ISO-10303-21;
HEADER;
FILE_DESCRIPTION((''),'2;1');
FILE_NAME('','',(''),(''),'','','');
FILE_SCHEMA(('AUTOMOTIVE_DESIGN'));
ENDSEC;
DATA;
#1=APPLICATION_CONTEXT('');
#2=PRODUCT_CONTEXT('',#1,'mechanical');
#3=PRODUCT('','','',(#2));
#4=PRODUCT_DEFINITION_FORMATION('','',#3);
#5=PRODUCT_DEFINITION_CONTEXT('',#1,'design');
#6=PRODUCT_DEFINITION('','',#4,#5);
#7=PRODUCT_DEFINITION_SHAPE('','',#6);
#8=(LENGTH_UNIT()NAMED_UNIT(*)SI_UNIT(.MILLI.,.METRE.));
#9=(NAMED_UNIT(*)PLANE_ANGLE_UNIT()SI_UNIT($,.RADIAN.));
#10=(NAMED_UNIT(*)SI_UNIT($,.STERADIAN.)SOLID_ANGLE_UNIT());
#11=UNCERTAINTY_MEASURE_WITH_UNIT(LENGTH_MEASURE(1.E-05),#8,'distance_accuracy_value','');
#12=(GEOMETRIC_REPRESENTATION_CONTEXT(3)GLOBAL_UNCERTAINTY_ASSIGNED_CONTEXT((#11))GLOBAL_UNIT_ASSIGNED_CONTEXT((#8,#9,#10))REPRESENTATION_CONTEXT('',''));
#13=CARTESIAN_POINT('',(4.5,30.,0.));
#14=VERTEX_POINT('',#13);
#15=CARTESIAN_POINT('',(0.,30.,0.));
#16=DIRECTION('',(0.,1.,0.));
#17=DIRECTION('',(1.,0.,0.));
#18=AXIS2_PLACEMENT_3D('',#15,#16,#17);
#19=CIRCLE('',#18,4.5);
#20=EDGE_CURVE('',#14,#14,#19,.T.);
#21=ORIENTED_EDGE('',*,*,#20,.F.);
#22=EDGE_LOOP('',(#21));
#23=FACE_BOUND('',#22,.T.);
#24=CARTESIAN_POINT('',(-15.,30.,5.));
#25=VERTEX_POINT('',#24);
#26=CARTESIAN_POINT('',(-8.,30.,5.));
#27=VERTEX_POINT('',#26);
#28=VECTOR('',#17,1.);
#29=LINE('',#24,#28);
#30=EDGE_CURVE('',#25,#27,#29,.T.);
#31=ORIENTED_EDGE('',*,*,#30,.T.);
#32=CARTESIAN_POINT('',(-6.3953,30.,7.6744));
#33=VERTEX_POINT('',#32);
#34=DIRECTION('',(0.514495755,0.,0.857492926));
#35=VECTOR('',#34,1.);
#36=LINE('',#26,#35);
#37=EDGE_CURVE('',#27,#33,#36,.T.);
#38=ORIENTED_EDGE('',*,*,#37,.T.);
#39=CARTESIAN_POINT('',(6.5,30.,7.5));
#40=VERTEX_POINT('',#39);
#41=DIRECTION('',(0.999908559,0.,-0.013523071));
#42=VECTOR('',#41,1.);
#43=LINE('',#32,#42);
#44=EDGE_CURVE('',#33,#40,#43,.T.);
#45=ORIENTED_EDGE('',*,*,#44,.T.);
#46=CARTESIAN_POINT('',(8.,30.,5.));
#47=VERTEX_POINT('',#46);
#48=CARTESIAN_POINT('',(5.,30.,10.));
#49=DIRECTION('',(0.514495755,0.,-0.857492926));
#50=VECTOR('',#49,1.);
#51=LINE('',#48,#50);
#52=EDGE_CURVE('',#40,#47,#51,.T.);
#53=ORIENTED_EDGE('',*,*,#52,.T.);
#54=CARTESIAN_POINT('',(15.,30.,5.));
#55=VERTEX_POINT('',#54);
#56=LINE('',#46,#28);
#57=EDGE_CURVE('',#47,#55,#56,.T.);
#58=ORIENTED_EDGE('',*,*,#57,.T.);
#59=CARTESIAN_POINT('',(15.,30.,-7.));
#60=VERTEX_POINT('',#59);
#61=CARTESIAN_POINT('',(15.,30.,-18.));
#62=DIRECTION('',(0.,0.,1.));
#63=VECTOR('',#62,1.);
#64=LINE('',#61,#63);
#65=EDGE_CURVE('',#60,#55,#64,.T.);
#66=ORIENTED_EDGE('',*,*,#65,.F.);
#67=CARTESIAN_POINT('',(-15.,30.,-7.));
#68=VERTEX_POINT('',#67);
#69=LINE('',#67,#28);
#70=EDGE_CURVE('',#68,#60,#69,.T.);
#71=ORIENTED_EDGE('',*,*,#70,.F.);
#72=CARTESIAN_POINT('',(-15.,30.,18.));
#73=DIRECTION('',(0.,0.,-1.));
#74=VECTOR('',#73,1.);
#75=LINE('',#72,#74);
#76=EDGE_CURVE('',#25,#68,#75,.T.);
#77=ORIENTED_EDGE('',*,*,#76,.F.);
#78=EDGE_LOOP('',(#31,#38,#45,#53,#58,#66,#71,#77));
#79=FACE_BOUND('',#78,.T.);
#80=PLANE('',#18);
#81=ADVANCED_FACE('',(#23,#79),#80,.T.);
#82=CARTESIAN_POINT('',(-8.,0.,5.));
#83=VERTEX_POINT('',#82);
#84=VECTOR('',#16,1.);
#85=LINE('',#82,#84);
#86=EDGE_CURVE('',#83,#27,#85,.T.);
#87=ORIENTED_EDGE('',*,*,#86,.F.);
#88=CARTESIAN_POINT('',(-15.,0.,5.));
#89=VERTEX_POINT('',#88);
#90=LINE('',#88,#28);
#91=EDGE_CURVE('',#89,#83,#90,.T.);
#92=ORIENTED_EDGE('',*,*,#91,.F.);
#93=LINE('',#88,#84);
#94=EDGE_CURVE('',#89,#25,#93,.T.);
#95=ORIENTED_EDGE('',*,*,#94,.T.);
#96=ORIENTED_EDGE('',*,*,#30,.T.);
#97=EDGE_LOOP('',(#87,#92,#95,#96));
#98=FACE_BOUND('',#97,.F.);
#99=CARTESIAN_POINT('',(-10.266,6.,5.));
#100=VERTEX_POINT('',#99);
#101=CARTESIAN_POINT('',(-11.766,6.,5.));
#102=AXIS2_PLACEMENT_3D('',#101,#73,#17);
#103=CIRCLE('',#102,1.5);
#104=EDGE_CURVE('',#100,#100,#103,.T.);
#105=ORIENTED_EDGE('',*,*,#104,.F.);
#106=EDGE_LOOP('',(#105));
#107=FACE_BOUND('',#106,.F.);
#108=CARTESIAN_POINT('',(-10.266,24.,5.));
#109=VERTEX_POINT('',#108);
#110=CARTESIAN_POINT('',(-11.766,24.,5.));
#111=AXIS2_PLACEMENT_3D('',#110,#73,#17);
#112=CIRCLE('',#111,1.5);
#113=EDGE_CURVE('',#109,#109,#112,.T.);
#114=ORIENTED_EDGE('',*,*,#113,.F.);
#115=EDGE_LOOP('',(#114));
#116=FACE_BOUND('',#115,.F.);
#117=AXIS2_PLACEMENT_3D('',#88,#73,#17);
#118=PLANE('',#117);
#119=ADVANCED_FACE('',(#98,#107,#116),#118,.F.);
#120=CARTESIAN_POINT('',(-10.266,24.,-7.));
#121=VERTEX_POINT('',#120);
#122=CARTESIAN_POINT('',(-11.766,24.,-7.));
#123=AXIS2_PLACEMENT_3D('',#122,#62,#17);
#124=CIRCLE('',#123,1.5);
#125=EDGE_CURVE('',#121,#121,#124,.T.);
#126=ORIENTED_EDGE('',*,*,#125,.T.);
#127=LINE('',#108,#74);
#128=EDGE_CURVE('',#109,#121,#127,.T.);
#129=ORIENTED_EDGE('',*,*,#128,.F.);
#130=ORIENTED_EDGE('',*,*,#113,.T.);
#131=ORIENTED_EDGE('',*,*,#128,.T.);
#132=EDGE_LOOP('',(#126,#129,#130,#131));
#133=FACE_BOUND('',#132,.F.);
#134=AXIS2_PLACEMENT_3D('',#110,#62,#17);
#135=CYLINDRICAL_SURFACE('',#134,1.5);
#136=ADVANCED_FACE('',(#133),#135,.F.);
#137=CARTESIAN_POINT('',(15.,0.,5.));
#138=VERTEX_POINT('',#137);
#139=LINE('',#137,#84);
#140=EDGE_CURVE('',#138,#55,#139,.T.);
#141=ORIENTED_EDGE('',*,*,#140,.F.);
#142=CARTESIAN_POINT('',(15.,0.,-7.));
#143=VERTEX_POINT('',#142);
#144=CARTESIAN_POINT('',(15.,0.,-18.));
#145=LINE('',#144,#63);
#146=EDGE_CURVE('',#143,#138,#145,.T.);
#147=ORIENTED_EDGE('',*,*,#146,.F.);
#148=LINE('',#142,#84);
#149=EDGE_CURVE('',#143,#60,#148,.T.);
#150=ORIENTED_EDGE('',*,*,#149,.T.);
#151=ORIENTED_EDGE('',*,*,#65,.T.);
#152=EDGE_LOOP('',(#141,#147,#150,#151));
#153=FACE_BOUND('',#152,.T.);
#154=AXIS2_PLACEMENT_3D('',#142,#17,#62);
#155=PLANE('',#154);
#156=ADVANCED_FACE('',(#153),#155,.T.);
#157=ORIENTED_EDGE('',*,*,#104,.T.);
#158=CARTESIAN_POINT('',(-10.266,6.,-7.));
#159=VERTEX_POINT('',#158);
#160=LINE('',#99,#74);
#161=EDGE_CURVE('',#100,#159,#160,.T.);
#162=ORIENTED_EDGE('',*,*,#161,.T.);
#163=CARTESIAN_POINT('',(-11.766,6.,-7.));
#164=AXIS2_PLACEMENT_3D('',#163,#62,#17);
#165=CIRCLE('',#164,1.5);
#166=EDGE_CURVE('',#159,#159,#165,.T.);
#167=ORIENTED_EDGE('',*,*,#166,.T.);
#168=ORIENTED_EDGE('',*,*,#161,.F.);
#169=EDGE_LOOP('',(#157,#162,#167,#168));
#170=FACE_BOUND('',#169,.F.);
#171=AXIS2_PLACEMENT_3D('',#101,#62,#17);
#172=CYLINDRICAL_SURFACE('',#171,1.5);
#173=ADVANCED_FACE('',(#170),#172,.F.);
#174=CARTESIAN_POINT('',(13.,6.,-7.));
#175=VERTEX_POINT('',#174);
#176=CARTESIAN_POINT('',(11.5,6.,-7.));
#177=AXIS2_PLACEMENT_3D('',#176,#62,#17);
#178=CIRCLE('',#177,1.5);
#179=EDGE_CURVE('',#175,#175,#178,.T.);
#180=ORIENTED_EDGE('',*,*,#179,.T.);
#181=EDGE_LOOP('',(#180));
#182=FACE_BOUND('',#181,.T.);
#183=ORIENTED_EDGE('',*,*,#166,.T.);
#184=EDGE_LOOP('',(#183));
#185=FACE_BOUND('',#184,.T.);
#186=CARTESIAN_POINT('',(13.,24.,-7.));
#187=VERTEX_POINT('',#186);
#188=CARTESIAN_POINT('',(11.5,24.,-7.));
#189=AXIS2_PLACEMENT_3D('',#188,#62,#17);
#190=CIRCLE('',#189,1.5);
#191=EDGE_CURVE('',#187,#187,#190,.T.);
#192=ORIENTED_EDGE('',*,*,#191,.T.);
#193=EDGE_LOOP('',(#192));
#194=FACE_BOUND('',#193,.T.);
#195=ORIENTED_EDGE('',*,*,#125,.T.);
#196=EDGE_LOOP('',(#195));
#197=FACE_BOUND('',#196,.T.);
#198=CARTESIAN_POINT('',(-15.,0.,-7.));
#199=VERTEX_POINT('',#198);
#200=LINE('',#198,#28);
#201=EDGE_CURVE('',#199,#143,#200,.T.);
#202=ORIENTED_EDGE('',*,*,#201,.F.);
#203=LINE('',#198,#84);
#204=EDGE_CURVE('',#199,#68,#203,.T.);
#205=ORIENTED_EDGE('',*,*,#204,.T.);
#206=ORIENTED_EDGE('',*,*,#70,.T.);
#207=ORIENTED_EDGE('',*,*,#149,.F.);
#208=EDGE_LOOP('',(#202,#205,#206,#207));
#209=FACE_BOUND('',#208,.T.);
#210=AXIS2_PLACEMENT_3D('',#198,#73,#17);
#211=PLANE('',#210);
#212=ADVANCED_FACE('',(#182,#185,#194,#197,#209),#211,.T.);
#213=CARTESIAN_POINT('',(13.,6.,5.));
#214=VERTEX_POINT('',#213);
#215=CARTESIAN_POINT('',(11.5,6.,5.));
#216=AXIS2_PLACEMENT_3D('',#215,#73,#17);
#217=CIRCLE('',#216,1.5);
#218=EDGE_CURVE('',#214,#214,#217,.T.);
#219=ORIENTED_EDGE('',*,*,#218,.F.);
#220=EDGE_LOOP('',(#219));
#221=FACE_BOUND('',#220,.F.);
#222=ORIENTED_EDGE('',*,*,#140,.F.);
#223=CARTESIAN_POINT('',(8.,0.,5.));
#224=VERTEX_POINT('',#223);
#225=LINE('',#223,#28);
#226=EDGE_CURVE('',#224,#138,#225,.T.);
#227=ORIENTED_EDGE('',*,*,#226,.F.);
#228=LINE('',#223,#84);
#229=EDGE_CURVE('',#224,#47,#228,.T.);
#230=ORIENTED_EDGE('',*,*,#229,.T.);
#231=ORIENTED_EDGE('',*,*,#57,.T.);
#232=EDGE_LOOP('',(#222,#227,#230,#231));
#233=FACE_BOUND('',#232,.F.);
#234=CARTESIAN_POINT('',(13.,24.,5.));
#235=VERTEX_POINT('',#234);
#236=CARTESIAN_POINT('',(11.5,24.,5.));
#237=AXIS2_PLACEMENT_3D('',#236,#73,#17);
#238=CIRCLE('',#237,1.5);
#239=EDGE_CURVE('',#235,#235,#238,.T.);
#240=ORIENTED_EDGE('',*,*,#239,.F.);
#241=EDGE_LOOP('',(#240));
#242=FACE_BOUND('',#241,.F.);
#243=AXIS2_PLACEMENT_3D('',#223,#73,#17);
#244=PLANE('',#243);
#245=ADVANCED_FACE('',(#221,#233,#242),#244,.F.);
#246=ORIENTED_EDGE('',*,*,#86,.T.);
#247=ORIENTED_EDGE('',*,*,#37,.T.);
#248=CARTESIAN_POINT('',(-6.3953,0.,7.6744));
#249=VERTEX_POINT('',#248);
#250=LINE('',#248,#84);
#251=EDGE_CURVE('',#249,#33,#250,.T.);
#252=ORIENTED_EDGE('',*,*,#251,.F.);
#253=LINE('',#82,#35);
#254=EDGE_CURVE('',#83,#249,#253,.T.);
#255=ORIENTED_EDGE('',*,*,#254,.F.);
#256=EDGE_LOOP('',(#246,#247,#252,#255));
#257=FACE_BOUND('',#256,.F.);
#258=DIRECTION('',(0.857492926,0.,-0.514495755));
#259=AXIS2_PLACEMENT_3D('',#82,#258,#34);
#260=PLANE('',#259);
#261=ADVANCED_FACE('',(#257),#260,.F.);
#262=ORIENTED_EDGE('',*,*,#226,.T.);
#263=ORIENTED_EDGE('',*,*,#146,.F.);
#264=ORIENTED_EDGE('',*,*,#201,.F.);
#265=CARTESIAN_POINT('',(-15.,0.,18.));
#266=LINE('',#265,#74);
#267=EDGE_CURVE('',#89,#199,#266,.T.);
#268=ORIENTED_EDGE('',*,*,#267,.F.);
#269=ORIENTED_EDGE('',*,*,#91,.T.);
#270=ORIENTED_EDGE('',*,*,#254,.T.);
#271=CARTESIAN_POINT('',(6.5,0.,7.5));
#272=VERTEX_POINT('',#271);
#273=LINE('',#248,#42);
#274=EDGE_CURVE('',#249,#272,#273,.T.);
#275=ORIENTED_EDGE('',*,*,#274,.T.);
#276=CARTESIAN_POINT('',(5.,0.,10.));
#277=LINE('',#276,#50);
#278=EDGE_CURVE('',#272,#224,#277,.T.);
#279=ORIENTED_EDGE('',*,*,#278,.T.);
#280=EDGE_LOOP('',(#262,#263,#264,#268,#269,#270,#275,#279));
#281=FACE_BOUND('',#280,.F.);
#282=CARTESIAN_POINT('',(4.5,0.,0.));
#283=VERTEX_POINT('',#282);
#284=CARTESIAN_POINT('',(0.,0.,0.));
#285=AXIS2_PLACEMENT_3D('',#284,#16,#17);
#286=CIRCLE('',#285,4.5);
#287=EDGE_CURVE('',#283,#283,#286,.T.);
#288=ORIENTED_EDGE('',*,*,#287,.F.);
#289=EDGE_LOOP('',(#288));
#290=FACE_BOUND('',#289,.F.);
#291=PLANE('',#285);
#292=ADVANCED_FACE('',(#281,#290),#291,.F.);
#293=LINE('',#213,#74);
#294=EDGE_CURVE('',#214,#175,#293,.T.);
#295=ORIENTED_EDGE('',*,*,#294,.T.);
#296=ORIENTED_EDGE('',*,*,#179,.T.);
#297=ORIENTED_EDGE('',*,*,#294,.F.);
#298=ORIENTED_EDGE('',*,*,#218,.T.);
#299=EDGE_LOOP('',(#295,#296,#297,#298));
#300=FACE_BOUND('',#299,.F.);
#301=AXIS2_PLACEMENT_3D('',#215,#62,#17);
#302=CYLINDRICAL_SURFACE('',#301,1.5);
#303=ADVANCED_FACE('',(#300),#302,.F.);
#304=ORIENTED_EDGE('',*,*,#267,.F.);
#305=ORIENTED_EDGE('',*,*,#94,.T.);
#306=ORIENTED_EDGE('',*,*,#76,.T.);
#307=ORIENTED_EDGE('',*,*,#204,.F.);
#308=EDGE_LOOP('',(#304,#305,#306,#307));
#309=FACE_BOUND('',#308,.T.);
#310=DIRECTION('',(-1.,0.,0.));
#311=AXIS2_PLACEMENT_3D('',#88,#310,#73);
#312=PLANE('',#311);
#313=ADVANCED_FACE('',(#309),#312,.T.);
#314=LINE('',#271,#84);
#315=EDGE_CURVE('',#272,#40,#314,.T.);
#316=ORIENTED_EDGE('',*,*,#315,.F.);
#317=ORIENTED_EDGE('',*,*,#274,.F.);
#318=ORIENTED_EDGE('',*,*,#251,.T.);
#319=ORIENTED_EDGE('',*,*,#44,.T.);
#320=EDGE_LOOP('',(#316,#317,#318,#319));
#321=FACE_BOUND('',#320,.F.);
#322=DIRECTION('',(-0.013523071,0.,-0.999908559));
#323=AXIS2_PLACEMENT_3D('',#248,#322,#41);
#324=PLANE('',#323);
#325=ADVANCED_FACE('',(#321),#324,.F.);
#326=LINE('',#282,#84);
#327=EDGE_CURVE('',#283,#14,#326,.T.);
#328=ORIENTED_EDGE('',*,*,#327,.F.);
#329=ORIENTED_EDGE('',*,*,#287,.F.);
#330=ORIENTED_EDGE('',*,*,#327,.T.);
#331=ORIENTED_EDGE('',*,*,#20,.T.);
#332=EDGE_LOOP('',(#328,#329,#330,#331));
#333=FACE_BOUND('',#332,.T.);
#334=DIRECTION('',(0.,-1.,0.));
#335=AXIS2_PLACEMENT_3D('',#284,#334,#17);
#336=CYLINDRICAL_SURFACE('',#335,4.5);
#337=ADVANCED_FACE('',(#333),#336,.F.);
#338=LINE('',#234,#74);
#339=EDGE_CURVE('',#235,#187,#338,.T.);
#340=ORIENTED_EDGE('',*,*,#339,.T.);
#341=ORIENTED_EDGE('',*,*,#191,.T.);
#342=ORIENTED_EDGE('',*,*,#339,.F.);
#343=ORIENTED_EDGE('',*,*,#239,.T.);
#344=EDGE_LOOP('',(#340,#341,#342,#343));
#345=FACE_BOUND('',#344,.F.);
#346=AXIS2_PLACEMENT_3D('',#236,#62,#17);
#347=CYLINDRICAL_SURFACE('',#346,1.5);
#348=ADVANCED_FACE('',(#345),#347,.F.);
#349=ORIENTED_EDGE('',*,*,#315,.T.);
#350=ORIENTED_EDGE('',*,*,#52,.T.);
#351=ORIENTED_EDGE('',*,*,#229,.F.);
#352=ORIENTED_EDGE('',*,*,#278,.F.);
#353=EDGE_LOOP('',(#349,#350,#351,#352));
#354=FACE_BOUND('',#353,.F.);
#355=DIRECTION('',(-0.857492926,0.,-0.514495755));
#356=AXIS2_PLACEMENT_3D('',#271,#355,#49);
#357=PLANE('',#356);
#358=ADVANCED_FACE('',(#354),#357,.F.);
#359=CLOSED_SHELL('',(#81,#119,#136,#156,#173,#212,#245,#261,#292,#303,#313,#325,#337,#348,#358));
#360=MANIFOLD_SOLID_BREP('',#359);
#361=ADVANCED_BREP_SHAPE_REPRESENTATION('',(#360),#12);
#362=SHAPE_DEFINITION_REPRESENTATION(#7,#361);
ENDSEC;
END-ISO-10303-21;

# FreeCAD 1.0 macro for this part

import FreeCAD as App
import Part
import Sketcher
Q = App.Units.Quantity


def add_polygon(sketch, points):
    """Adds a closed chain of lines whose ends are joined by coincident constraints."""
    first, n = sketch.GeometryCount, len(points)
    for a, b in zip(points, points[1:] + points[:1]):
        sketch.addGeometry(Part.LineSegment(App.Vector(*a, 0), App.Vector(*b, 0)), False)
    for i in range(n):
        sketch.addConstraint(Sketcher.Constraint("Coincident", first + i, 2, first + (i + 1) % n, 1))

doc = App.newDocument("Part")
body = doc.addObject("PartDesign::Body", "Body")

sketch1 = body.newObject("Sketcher::SketchObject", "Sketch")
sketch1.AttachmentSupport = (doc.getObject("XZ_Plane"), [""])
sketch1.MapMode = "FlatFace"
add_polygon(sketch1, [(8, 5), (15, 5), (15, -7), (-15, -7), (-15, 5), (-8, 5), (-6.4, 7.7), (6.5, 7.5)])
sketch1.addGeometry(Part.Circle(App.Vector(0, 0, 0), App.Vector(0, 0, 1), 4.5), False)
sketch1.addConstraint(Sketcher.Constraint("Horizontal", 0))
sketch1.addConstraint(Sketcher.Constraint("Vertical", 1))
sketch1.addConstraint(Sketcher.Constraint("Horizontal", 2))
sketch1.addConstraint(Sketcher.Constraint("Vertical", 3))
sketch1.addConstraint(Sketcher.Constraint("Horizontal", 4))
sketch1.addConstraint(Sketcher.Constraint("Coincident", 8, 3, -1, 1))
sketch1.addConstraint(Sketcher.Constraint("Symmetric", 0, 2, 3, 2, -2))
sketch1.addConstraint(Sketcher.Constraint("Equal", 0, 4))
sketch1.addConstraint(Sketcher.Constraint("Diameter", 8, Q("9 mm")))
sketch1.addConstraint(Sketcher.Constraint("DistanceX", 0, 1, 0, 2, Q("7 mm")))
sketch1.addConstraint(Sketcher.Constraint("DistanceX", 2, 2, 2, 1, Q("30 mm")))
sketch1.addConstraint(Sketcher.Constraint("DistanceY", 1, 2, 1, 1, Q("12 mm")))
sketch1.addConstraint(Sketcher.Constraint("DistanceY", -1, 1, 0, 2, Q("5 mm")))
sketch1.addConstraint(Sketcher.Constraint("DistanceX", -1, 1, 6, 2, Q("6.5 mm")))
sketch1.addConstraint(Sketcher.Constraint("DistanceY", -1, 1, 6, 2, Q("7.5 mm")))
sketch1.addConstraint(Sketcher.Constraint("Distance", 5, Q("3.119 mm")))
sketch1.addConstraint(Sketcher.Constraint("Distance", 6, Q("12.8965 mm")))
pad1 = body.newObject("PartDesign::Pad", "Pad")
pad1.Profile = sketch1
pad1.Length = 30
pad1.Reversed = True

sketch2 = body.newObject("Sketcher::SketchObject", "Sketch001")
sketch2.AttachmentSupport = (doc.getObject("XY_Plane"), [""])
sketch2.MapMode = "FlatFace"
sketch2.AttachmentOffset = App.Placement(App.Vector(0, 0, 5), App.Rotation())
sketch2.addGeometry(Part.Circle(App.Vector(11.5, 6, 0), App.Vector(0, 0, 1), 1.5), False)
sketch2.addGeometry(Part.Circle(App.Vector(-11.8, 6, 0), App.Vector(0, 0, 1), 1.5), False)
sketch2.addGeometry(Part.Circle(App.Vector(-11.8, 24, 0), App.Vector(0, 0, 1), 1.5), False)
sketch2.addGeometry(Part.Circle(App.Vector(11.5, 24, 0), App.Vector(0, 0, 1), 1.5), False)
sketch2.addConstraint(Sketcher.Constraint("Equal", 0, 1))
sketch2.addConstraint(Sketcher.Constraint("Equal", 1, 2))
sketch2.addConstraint(Sketcher.Constraint("Equal", 2, 3))
sketch2.addConstraint(Sketcher.Constraint("Horizontal", 0, 3, 1, 3))
sketch2.addConstraint(Sketcher.Constraint("Horizontal", 2, 3, 3, 3))
sketch2.addConstraint(Sketcher.Constraint("Vertical", 1, 3, 2, 3))
sketch2.addConstraint(Sketcher.Constraint("Vertical", 0, 3, 3, 3))
sketch2.addConstraint(Sketcher.Constraint("Diameter", 0, Q("3 mm")))
sketch2.addConstraint(Sketcher.Constraint("DistanceY", -1, 1, 0, 3, Q("6 mm")))
sketch2.addConstraint(Sketcher.Constraint("DistanceY", -1, 1, 2, 3, Q("24 mm")))
sketch2.addConstraint(Sketcher.Constraint("DistanceX", -1, 1, 0, 3, Q("11.5 mm")))
sketch2.addConstraint(Sketcher.Constraint("DistanceX", 1, 3, -1, 1, Q("11.766 mm")))
pocket1 = body.newObject("PartDesign::Pocket", "Pocket")
pocket1.Profile = sketch2
pocket1.Length = 14

doc.recompute()
